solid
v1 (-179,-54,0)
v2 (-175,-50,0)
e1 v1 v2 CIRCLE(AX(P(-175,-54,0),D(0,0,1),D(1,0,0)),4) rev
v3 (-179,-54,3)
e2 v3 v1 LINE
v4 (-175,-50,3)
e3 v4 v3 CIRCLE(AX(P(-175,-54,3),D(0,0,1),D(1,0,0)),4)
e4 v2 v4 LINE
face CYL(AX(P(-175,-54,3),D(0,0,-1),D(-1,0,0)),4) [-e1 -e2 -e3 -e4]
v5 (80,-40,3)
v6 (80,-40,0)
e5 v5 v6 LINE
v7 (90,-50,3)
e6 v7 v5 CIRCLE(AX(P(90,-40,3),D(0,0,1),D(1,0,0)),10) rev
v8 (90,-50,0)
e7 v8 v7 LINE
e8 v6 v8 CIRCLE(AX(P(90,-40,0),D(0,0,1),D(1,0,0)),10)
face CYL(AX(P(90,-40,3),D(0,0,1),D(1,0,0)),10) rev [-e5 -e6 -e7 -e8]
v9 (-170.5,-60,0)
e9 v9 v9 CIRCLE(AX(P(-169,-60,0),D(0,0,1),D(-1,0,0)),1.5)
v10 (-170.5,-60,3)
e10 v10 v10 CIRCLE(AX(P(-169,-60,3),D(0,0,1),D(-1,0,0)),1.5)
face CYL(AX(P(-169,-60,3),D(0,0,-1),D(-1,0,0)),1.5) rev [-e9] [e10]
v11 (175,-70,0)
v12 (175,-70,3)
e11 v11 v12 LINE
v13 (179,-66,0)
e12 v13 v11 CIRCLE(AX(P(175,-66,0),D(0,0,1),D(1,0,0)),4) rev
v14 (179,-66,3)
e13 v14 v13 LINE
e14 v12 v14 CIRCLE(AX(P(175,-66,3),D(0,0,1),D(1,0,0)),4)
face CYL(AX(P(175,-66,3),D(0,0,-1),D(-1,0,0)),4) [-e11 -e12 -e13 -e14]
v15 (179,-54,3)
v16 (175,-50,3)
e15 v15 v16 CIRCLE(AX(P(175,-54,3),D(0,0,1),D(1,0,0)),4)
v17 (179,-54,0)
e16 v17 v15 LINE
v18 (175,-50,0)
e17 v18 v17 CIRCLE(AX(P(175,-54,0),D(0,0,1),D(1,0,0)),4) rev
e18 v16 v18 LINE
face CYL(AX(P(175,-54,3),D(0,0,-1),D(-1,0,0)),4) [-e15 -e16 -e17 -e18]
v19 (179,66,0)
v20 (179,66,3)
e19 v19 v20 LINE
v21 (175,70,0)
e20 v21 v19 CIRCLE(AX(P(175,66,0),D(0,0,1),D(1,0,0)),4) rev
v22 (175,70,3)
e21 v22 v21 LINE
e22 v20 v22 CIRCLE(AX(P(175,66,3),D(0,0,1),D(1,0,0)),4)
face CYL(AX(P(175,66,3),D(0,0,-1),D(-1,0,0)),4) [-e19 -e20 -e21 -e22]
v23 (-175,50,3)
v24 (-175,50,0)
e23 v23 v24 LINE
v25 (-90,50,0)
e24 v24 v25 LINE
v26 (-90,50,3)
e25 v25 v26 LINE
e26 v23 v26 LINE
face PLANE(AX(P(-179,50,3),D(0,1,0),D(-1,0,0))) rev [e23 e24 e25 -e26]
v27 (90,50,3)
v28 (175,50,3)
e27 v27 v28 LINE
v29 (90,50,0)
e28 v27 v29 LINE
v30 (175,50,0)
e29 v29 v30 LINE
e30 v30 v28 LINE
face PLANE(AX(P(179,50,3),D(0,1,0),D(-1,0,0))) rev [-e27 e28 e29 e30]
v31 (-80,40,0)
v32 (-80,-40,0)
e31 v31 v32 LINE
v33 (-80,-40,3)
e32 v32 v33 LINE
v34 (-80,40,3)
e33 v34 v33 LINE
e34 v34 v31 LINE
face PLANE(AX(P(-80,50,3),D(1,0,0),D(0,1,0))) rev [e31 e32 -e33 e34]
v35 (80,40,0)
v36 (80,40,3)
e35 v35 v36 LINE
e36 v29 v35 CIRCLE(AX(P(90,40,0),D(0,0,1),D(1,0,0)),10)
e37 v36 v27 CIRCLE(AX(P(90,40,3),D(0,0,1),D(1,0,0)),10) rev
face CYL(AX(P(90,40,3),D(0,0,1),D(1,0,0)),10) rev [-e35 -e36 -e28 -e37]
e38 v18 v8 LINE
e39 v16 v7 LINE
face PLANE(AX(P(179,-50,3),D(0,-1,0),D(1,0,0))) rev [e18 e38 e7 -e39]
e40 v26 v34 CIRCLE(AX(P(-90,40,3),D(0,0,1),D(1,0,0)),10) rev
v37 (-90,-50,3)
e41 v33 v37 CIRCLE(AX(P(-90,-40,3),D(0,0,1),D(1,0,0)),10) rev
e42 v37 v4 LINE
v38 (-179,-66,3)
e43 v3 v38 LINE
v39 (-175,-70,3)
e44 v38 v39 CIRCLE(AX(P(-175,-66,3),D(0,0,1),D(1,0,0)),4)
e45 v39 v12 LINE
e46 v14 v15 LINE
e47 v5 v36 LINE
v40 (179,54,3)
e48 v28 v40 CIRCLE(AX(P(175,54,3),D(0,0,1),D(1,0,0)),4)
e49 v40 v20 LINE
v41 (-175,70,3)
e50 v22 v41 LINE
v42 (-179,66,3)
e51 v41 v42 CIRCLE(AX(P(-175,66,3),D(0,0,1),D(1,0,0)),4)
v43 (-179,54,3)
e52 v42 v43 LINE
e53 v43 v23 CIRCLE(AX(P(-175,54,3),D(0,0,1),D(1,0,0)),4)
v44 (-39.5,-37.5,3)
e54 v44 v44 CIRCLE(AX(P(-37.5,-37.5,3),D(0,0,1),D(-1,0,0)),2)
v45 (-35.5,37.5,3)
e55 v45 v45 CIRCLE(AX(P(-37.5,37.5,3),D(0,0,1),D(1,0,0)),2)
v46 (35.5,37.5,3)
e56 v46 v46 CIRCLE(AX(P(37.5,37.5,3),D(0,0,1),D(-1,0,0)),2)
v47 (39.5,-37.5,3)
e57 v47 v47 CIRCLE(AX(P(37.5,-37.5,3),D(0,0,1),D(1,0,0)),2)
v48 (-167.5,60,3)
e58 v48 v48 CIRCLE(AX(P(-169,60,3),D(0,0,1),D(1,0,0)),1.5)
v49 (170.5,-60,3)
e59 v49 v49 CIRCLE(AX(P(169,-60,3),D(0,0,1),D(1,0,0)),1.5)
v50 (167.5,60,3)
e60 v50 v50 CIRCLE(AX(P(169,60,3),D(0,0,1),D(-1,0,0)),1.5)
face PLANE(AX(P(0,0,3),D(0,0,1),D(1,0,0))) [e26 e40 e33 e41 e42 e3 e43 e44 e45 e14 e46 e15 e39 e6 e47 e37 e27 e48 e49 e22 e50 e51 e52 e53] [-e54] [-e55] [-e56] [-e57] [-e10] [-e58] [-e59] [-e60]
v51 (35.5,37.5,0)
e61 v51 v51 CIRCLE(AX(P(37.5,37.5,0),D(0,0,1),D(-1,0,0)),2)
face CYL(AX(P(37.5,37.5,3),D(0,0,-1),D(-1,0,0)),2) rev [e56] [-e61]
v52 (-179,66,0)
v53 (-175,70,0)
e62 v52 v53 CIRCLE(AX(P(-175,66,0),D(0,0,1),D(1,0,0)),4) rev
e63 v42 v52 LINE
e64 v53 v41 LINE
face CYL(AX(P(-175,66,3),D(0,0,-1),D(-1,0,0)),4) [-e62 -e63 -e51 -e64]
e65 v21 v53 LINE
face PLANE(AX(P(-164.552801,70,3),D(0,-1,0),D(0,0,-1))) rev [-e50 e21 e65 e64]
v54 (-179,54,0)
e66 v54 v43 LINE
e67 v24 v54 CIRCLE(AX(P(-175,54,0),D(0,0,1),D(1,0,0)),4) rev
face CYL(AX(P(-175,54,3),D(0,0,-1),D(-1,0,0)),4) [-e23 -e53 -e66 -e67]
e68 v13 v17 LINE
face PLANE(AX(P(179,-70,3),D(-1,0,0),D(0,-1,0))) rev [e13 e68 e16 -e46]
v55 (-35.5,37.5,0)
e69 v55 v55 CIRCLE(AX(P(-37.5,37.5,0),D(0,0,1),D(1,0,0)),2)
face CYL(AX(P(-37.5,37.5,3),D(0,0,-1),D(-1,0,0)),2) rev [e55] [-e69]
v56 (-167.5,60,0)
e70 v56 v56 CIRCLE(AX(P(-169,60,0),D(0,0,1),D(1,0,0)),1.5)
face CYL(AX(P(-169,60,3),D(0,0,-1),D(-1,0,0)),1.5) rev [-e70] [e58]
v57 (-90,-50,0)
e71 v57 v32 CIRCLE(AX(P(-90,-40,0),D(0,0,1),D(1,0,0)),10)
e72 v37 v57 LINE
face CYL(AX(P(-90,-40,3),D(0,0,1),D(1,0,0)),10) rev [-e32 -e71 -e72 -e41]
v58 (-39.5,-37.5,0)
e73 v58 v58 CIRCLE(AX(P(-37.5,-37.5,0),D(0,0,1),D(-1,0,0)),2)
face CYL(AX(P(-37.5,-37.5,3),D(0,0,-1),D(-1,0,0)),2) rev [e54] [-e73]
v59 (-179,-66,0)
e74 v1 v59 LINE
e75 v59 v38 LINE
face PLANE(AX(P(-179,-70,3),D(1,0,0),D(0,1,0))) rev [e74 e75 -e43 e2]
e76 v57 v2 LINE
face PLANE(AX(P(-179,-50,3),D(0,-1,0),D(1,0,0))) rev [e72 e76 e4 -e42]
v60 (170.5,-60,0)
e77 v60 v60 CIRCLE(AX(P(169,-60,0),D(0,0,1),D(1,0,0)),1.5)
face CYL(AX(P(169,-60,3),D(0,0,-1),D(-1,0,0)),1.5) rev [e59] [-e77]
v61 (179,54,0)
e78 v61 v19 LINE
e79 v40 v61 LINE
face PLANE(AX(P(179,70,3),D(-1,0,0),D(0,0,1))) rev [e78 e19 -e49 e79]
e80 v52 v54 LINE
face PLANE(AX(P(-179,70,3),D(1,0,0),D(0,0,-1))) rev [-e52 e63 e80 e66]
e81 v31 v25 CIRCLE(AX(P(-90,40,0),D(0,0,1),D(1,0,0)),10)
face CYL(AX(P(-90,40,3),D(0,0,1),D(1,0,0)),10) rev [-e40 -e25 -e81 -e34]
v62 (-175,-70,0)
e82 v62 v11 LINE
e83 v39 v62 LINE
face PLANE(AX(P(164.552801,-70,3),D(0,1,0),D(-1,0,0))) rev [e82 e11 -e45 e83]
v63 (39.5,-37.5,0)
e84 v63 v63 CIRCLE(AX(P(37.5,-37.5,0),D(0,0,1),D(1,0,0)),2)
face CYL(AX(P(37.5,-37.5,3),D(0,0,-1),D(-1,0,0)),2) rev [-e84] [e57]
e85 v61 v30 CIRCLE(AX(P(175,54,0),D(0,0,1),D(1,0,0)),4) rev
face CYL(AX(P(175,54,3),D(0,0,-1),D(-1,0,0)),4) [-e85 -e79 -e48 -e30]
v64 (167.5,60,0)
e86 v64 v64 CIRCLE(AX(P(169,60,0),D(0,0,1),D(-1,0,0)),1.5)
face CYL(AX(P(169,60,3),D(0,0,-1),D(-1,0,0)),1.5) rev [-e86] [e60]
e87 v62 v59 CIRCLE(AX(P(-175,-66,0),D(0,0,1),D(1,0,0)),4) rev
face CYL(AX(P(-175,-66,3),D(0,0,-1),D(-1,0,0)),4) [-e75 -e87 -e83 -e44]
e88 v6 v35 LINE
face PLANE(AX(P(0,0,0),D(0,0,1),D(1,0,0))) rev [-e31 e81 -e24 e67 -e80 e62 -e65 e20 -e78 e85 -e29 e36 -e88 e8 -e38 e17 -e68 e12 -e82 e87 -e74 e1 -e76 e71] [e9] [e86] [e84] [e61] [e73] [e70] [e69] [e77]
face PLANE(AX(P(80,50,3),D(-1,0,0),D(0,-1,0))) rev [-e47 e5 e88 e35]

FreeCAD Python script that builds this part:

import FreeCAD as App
import Part
import Sketcher
Q = App.Units.Quantity


def edges_at(feature, points):
    """Names of the edges that pass closest to the given points."""
    edges = feature.Shape.Edges
    near = lambda p: min(range(len(edges)), key=lambda i: edges[i].distToShape(Part.Vertex(*p))[0])
    return sorted({f"Edge{near(p) + 1}" for p in points})


def add_polygon(sketch, points):
    """Adds a closed chain of lines whose ends are joined by coincident constraints."""
    first, n = sketch.GeometryCount, len(points)
    for a, b in zip(points, points[1:] + points[:1]):
        sketch.addGeometry(Part.LineSegment(App.Vector(*a, 0), App.Vector(*b, 0)), False)
    for i in range(n):
        sketch.addConstraint(Sketcher.Constraint("Coincident", first + i, 2, first + (i + 1) % n, 1))

doc = App.newDocument("Part")
params = doc.addObject("Spreadsheet::Sheet", "Params")
for row, (alias, value) in enumerate([
    ("sketch1_diameter", "3 mm"),
    ("sketch1_diameter2", "4 mm"),
    ("sketch1_width", "358 mm"),
    ("sketch1_width2", "99 mm"),
    ("sketch1_height", "20 mm"),
    ("pad1_length", "3 mm"),
    ("fillet_radius", "4 mm"),
    ("fillet2_radius", "10 mm"),
], start=1):
    params.set(f"A{row}", alias)
    params.set(f"B{row}", "=" + value)
    params.setAlias(f"B{row}", alias)

body = doc.addObject("PartDesign::Body", "Body")

# Sketch on XY plane
sketch1 = body.newObject("Sketcher::SketchObject", "Sketch")
sketch1.AttachmentSupport = (doc.getObject("XY_Plane"), [""])
sketch1.MapMode = "FlatFace"
add_polygon(sketch1, [(179, 70), (-179, 70), (-179, 50), (-80, 50), (-80, -50), (-179, -50), (-179, -70), (179, -70), (179, -50), (80, -50), (80, 50), (179, 50)])  # lines 0-11
sketch1.addGeometry(Part.Circle(App.Vector(169, -60, 0), App.Vector(0, 0, 1), 1.5), False)  # 12
sketch1.addGeometry(Part.Circle(App.Vector(37.5, -37.5, 0), App.Vector(0, 0, 1), 2), False)  # 13
sketch1.addGeometry(Part.Circle(App.Vector(-37.5, -37.5, 0), App.Vector(0, 0, 1), 2), False)  # 14
sketch1.addGeometry(Part.Circle(App.Vector(-169, -60, 0), App.Vector(0, 0, 1), 1.5), False)  # 15
sketch1.addGeometry(Part.Circle(App.Vector(169, 60, 0), App.Vector(0, 0, 1), 1.5), False)  # 16
sketch1.addGeometry(Part.Circle(App.Vector(37.5, 37.5, 0), App.Vector(0, 0, 1), 2), False)  # 17
sketch1.addGeometry(Part.Circle(App.Vector(-37.5, 37.5, 0), App.Vector(0, 0, 1), 2), False)  # 18
sketch1.addGeometry(Part.Circle(App.Vector(-169, 60, 0), App.Vector(0, 0, 1), 1.5), False)  # 19
sketch1.addConstraint([
    Sketcher.Constraint("Horizontal", 0),
    Sketcher.Constraint("Vertical", 1),
    Sketcher.Constraint("Horizontal", 2),
    Sketcher.Constraint("Vertical", 3),
    Sketcher.Constraint("Horizontal", 4),
    Sketcher.Constraint("Vertical", 5),
    Sketcher.Constraint("Horizontal", 6),
    Sketcher.Constraint("Vertical", 7),
    Sketcher.Constraint("Horizontal", 8),
    Sketcher.Constraint("Vertical", 9),
    Sketcher.Constraint("Horizontal", 10),
    Sketcher.Constraint("Vertical", 11),
    Sketcher.Constraint("Equal", 13, 14),
    Sketcher.Constraint("Equal", 12, 15),
    Sketcher.Constraint("Equal", 15, 16),
    Sketcher.Constraint("Equal", 14, 17),
    Sketcher.Constraint("Equal", 17, 18),
    Sketcher.Constraint("Equal", 16, 19),
    Sketcher.Constraint("Symmetric", 15, 3, 16, 3, -1, 1),
    Sketcher.Constraint("Symmetric", 14, 3, 17, 3, -1, 1),
    Sketcher.Constraint("Symmetric", 13, 3, 18, 3, -1, 1),
    Sketcher.Constraint("Symmetric", 12, 3, 19, 3, -1, 1),
    Sketcher.Constraint("Symmetric", 0, 2, 6, 2, -1, 1),
    Sketcher.Constraint("Symmetric", 2, 2, 8, 2, -1, 1),
    Sketcher.Constraint("Symmetric", 4, 2, 10, 2, -1, 1),
    Sketcher.Constraint("Symmetric", 13, 3, 14, 3, -2),
    Sketcher.Constraint("Symmetric", 12, 3, 15, 3, -2),
    Sketcher.Constraint("Symmetric", 4, 2, 7, 2, -2),
    Sketcher.Constraint("Diameter", 12, Q("3 mm")),
    Sketcher.Constraint("Diameter", 13, Q("4 mm")),
    Sketcher.Constraint("DistanceX", 0, 2, 0, 1, Q("358 mm")),
    Sketcher.Constraint("DistanceX", 2, 1, 2, 2, Q("99 mm")),
    Sketcher.Constraint("DistanceY", 1, 2, 1, 1, Q("20 mm")),
    Sketcher.Constraint("DistanceY", 3, 2, 3, 1, Q("100 mm")),
    Sketcher.Constraint("DistanceX", -1, 1, 12, 3, Q("169 mm")),
    Sketcher.Constraint("DistanceY", 12, 3, -1, 1, Q("60 mm")),
    Sketcher.Constraint("DistanceX", 14, 3, 13, 3, Q("75 mm")),
    Sketcher.Constraint("DistanceY", 13, 3, 17, 3, Q("75 mm")),
])
sketch1.setExpression("Constraints[40]", "Params.sketch1_diameter")
sketch1.setExpression("Constraints[41]", "Params.sketch1_diameter2")
sketch1.setExpression("Constraints[42]", "Params.sketch1_width")
sketch1.setExpression("Constraints[43]", "Params.sketch1_width2")
sketch1.setExpression("Constraints[44]", "Params.sketch1_height")
pad1 = body.newObject("PartDesign::Pad", "Pad")
pad1.Profile = sketch1
pad1.setExpression("Length", "Params.pad1_length")
doc.recompute()

fillet = body.newObject("PartDesign::Fillet", "Fillet")
fillet.Base = (pad1, edges_at(pad1, [
    (179, 70, 1.5),
    (179, 50, 1.5),
    (179, -50, 1.5),
    (179, -70, 1.5),
    (-179, -70, 1.5),
    (-179, -50, 1.5),
    (-179, 50, 1.5),
    (-179, 70, 1.5),
]))
fillet.setExpression("Radius", "Params.fillet_radius")
doc.recompute()

fillet2 = body.newObject("PartDesign::Fillet", "Fillet001")
fillet2.Base = (fillet, edges_at(fillet, [
    (80, 50, 1.5),
    (80, -50, 1.5),
    (-80, -50, 1.5),
    (-80, 50, 1.5),
]))
fillet2.setExpression("Radius", "Params.fillet2_radius")

doc.recompute()
